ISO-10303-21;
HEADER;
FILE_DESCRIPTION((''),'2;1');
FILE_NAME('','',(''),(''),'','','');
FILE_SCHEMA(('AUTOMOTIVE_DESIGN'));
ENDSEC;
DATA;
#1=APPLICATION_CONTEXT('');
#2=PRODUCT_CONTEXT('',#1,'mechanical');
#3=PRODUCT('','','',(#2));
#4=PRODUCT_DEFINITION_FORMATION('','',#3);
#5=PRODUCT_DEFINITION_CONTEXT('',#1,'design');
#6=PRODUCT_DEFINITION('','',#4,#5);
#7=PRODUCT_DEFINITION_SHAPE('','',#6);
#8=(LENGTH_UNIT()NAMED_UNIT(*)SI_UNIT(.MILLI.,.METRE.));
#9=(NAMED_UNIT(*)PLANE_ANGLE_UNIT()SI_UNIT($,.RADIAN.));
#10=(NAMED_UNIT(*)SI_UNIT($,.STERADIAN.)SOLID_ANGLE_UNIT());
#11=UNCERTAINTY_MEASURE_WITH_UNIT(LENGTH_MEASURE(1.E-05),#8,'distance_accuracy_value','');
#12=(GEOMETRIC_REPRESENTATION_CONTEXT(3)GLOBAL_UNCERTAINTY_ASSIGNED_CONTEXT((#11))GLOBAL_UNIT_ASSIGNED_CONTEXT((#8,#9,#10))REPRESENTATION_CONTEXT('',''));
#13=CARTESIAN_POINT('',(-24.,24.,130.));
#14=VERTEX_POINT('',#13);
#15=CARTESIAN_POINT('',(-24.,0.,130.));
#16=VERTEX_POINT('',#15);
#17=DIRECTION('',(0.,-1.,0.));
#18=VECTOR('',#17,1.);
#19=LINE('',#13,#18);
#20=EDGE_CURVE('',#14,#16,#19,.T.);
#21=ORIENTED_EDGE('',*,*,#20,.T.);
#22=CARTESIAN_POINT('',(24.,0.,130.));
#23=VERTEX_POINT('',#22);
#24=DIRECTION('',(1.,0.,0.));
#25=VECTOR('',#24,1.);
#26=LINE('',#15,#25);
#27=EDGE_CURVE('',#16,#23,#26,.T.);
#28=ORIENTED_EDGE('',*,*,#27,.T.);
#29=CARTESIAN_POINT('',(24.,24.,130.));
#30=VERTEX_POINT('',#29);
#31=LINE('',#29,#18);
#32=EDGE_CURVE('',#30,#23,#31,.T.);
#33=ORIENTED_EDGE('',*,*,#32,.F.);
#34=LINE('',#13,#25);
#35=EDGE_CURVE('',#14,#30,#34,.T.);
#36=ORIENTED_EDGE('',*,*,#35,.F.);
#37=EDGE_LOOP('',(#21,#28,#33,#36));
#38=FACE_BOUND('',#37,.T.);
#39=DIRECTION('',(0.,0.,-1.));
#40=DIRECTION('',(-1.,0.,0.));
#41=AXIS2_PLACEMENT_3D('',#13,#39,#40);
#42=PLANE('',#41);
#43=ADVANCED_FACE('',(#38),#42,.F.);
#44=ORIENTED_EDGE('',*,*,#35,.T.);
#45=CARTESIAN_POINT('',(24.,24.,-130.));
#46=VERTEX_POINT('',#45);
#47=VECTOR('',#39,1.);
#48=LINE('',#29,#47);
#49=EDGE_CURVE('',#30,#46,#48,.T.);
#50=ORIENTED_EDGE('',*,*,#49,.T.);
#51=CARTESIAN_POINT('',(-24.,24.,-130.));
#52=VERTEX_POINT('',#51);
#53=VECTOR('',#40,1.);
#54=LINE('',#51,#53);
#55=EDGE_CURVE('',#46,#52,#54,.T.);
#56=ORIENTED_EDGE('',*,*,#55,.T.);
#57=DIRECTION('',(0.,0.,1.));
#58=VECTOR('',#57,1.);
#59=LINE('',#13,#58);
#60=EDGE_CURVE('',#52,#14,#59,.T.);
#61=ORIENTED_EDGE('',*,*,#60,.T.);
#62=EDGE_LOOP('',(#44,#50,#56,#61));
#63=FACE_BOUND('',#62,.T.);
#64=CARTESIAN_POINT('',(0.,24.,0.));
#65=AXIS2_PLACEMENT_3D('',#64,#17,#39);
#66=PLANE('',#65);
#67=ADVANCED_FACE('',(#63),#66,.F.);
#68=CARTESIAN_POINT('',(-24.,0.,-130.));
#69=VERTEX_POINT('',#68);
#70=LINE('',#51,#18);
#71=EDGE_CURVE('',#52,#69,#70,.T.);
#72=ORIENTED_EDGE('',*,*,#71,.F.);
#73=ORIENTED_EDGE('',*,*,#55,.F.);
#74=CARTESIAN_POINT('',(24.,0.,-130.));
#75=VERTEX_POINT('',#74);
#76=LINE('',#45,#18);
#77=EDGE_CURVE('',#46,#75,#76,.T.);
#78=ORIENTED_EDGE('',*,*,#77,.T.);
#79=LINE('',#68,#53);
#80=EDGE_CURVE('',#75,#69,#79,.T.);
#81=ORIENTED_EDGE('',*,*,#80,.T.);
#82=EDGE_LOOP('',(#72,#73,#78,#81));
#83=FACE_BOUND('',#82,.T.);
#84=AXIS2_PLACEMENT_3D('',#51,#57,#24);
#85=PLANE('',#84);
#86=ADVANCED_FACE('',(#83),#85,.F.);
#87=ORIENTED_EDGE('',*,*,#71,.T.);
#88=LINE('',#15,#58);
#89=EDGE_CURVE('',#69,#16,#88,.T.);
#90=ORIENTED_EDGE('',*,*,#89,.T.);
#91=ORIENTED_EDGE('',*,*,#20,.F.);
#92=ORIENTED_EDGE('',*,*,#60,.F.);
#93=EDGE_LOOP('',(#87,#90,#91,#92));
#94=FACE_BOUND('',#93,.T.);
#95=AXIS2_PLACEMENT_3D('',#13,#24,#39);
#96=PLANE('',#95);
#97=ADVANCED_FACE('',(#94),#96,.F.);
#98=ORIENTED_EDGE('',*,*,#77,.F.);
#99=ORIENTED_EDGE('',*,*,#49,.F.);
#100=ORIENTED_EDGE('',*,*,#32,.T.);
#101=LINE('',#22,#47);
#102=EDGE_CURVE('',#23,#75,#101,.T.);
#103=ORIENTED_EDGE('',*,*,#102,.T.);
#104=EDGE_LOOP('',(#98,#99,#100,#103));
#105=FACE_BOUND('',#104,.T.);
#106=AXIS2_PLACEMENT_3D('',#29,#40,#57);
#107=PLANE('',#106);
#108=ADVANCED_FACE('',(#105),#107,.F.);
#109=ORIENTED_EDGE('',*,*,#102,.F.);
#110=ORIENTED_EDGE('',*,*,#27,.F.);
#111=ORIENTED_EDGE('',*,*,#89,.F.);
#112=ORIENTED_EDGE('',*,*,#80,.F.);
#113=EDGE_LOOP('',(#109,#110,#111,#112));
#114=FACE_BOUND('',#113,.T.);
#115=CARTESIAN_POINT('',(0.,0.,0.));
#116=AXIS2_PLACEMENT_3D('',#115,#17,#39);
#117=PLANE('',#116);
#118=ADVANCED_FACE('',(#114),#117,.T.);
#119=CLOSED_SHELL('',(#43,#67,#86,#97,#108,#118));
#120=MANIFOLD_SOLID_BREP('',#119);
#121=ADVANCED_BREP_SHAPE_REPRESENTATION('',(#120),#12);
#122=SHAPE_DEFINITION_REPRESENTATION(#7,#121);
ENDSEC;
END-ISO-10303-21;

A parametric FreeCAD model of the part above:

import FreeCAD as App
import Part
import Sketcher
from FreeCAD import Vector
Q = App.Units.Quantity


def add_polygon(sketch, points):
    """Adds a closed chain of lines whose ends are joined by coincident constraints."""
    first, n = sketch.GeometryCount, len(points)
    for a, b in zip(points, points[1:] + points[:1]):
        sketch.addGeometry(Part.LineSegment(App.Vector(*a, 0), App.Vector(*b, 0)), False)
    for i in range(n):
        sketch.addConstraint(Sketcher.Constraint("Coincident", first + i, 2, first + (i + 1) % n, 1))

doc = App.newDocument("Part")
params = doc.addObject("Spreadsheet::Sheet", "Params")
for row, (alias, value) in enumerate([
    ("sketch1_width", "48 mm"),
    ("sketch1_height", "260 mm"),
    ("pad1_length", "24 mm"),
], start=1):
    params.set(f"A{row}", alias)
    params.set(f"B{row}", "=" + value)
    params.setAlias(f"B{row}", alias)

body = doc.addObject("PartDesign::Body", "Body")

# Sketch on XZ plane
sketch1 = doc.addObject("Sketcher::SketchObject", "Sketch")
body.addObject(sketch1)
sketch1.AttachmentSupport = (doc.XZ_Plane, [""])
sketch1.MapMode = "FlatFace"
add_polygon(sketch1, [(-24, -130), (-24, 130), (24, 130), (24, -130)])  # lines 0-3
sketch1.addConstraint([
    Sketcher.Constraint("Vertical", 0),
    Sketcher.Constraint("Horizontal", 1),
    Sketcher.Constraint("Vertical", 2),
    Sketcher.Constraint("Horizontal", 3),
    Sketcher.Constraint("Symmetric", 0, 2, 2, 2, -1, 1),
    Sketcher.Constraint("DistanceX", 1, 1, 1, 2, Q("48 mm")),
    Sketcher.Constraint("DistanceY", 0, 1, 0, 2, Q("260 mm")),
])
sketch1.setExpression("Constraints[9]", "Params.sketch1_width")
sketch1.setExpression("Constraints[10]", "Params.sketch1_height")
pad1 = doc.addObject("PartDesign::Pad", "Pad")
body.addObject(pad1)
pad1.Profile = sketch1
pad1.setExpression("Length", "Params.pad1_length")
pad1.Reversed = True

doc.recompute()
